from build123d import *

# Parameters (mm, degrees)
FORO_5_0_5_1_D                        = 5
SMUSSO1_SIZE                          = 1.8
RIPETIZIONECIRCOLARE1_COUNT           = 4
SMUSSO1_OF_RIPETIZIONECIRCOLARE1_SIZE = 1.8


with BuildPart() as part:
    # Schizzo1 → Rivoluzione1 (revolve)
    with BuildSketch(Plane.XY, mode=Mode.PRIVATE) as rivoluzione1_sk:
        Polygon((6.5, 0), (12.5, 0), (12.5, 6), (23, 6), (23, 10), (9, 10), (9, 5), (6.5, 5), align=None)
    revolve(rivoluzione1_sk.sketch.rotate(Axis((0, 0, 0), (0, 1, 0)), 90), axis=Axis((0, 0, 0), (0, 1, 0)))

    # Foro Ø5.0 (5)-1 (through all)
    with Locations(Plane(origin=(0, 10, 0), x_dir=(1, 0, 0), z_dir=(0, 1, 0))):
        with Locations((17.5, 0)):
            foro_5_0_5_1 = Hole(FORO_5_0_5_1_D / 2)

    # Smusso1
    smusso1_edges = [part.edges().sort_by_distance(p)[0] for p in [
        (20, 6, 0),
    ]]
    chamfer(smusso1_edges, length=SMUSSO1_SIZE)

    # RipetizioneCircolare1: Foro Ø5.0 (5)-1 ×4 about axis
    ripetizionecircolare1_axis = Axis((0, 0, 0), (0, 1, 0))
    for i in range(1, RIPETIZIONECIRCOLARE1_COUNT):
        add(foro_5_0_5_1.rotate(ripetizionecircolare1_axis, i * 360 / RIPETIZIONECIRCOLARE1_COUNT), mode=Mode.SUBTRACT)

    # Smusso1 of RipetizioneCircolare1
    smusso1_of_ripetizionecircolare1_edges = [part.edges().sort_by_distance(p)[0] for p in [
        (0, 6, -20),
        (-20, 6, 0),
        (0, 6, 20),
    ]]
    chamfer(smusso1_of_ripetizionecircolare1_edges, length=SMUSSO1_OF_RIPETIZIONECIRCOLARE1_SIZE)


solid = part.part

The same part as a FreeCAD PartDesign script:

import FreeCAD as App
import Part
import Sketcher

V = App.Vector
Q = App.Units.Quantity


def edges_at(feature, points):
    """Names of the edges that pass closest to the given points."""
    edges = feature.Shape.Edges
    near = lambda p: min(range(len(edges)), key=lambda i: edges[i].distToShape(Part.Vertex(*p))[0])
    return sorted({f"Edge{near(p) + 1}" for p in points})

doc = App.newDocument("Part")
params = doc.addObject("Spreadsheet::Sheet", "Params")
for row, (alias, value) in enumerate([
    ("sketch1_width", "6 mm"),
    ("sketch1_width2", "14 mm"),
    ("sketch1_height", "4 mm"),
    ("sketch1_width3", "10.5 mm"),
    ("revolution_angle", "360 deg"),
    ("sketch2_diameter", "5 mm"),
    ("hole_diameter", "5 mm"),
    ("chamfer_size", "1.8 mm"),
    ("chamfer2_size", "1.8 mm"),
], start=1):
    params.set(f"A{row}", alias)
    params.set(f"B{row}", "=" + value)
    params.setAlias(f"B{row}", alias)

body = doc.addObject("PartDesign::Body", "Body")

# Sketch on XY plane
sketch1 = doc.addObject("Sketcher::SketchObject", "Sketch")
body.addObject(sketch1)
sketch1.AttachmentSupport = (doc.XY_Plane, [""])
sketch1.MapMode = "FlatFace"
sketch1.addGeometry(Part.LineSegment(V(6.5, 0, 0), V(12.5, 0, 0)), False)
sketch1.addGeometry(Part.LineSegment(V(12.5, 0, 0), V(12.5, 6, 0)), False)
sketch1.addGeometry(Part.LineSegment(V(12.5, 6, 0), V(23, 6, 0)), False)
sketch1.addGeometry(Part.LineSegment(V(23, 6, 0), V(23, 10, 0)), False)
sketch1.addGeometry(Part.LineSegment(V(23, 10, 0), V(9, 10, 0)), False)
sketch1.addGeometry(Part.LineSegment(V(9, 10, 0), V(9, 5, 0)), False)
sketch1.addGeometry(Part.LineSegment(V(9, 5, 0), V(6.5, 5, 0)), False)
sketch1.addGeometry(Part.LineSegment(V(6.5, 5, 0), V(6.5, 0, 0)), False)
sketch1.addConstraint(Sketcher.Constraint("Coincident", 0, 2, 1, 1))
sketch1.addConstraint(Sketcher.Constraint("Coincident", 1, 2, 2, 1))
sketch1.addConstraint(Sketcher.Constraint("Coincident", 2, 2, 3, 1))
sketch1.addConstraint(Sketcher.Constraint("Coincident", 3, 2, 4, 1))
sketch1.addConstraint(Sketcher.Constraint("Coincident", 4, 2, 5, 1))
sketch1.addConstraint(Sketcher.Constraint("Coincident", 5, 2, 6, 1))
sketch1.addConstraint(Sketcher.Constraint("Coincident", 6, 2, 7, 1))
sketch1.addConstraint(Sketcher.Constraint("Coincident", 7, 2, 0, 1))
sketch1.addConstraint(Sketcher.Constraint("Horizontal", 0))
sketch1.addConstraint(Sketcher.Constraint("Vertical", 1))
sketch1.addConstraint(Sketcher.Constraint("Horizontal", 2))
sketch1.addConstraint(Sketcher.Constraint("Vertical", 3))
sketch1.addConstraint(Sketcher.Constraint("Horizontal", 4))
sketch1.addConstraint(Sketcher.Constraint("Vertical", 5))
sketch1.addConstraint(Sketcher.Constraint("Horizontal", 6))
sketch1.addConstraint(Sketcher.Constraint("Vertical", 7))
sketch1.addConstraint(Sketcher.Constraint("PointOnObject", 0, 2, -1))
sketch1.addConstraint(Sketcher.Constraint("Equal", 0, 1))
sketch1.addConstraint(Sketcher.Constraint("Equal", 5, 7))
sketch1.addConstraint(Sketcher.Constraint("DistanceX", 0, 1, 0, 2, Q("6 mm")))
sketch1.addConstraint(Sketcher.Constraint("DistanceX", 4, 2, 4, 1, Q("14 mm")))
sketch1.addConstraint(Sketcher.Constraint("DistanceY", 3, 1, 3, 2, Q("4 mm")))
sketch1.addConstraint(Sketcher.Constraint("DistanceX", 2, 1, 2, 2, Q("10.5 mm")))
sketch1.addConstraint(Sketcher.Constraint("DistanceX", -1, 1, 2, 2, Q("23 mm")))
sketch1.setExpression("Constraints[19]", "Params.sketch1_width")
sketch1.setExpression("Constraints[20]", "Params.sketch1_width2")
sketch1.setExpression("Constraints[21]", "Params.sketch1_height")
sketch1.setExpression("Constraints[22]", "Params.sketch1_width3")
revolution = doc.addObject("PartDesign::Revolution", "Revolution")
body.addObject(revolution)
revolution.Profile = sketch1
revolution.ReferenceAxis = (sketch1, ["V_Axis"])
revolution.setExpression("Angle", "Params.revolution_angle")

# Sketch on XZ plane
sketch2 = doc.addObject("Sketcher::SketchObject", "Sketch001")
body.addObject(sketch2)
sketch2.AttachmentSupport = (doc.XZ_Plane, [""])
sketch2.MapMode = "FlatFace"
sketch2.AttachmentOffset = App.Placement(V(0, 0, -10), App.Rotation())
sketch2.addGeometry(Part.Circle(V(17.5, 0, 0), V(0, 0, 1), 2.5), False)
sketch2.addConstraint(Sketcher.Constraint("PointOnObject", 0, 3, -1))
sketch2.addConstraint(Sketcher.Constraint("Diameter", 0, Q("5 mm")))
sketch2.addConstraint(Sketcher.Constraint("DistanceX", -1, 1, 0, 3, Q("17.5 mm")))
sketch2.setExpression("Constraints[1]", "Params.sketch2_diameter")
doc.recompute()
hole = doc.addObject("PartDesign::Hole", "Hole")
body.addObject(hole)
hole.Profile = sketch2
hole.ThreadType = "None"
hole.setExpression("Diameter", "Params.hole_diameter")
hole.DepthType = "ThroughAll"
hole.Reversed = True
doc.recompute()

chamfer = doc.addObject("PartDesign::Chamfer", "Chamfer")
body.addObject(chamfer)
chamfer.Base = (hole, edges_at(hole, [(20, 6, 0)]))
chamfer.setExpression("Size", "Params.chamfer_size")
doc.recompute()

polarpattern = doc.addObject("PartDesign::PolarPattern", "PolarPattern")
body.addObject(polarpattern)
polarpattern.Originals = [hole]
polarpattern.Axis = (doc.Y_Axis, [""])
polarpattern.Angle = 360
polarpattern.Occurrences = 4
body.Tip = polarpattern
doc.recompute()

chamfer2 = doc.addObject("PartDesign::Chamfer", "Chamfer001")
body.addObject(chamfer2)
chamfer2.Base = (polarpattern, edges_at(polarpattern, [(0, 6, -20), (-20, 6, 0), (0, 6, 20)]))
chamfer2.setExpression("Size", "Params.chamfer2_size")

doc.recompute()
